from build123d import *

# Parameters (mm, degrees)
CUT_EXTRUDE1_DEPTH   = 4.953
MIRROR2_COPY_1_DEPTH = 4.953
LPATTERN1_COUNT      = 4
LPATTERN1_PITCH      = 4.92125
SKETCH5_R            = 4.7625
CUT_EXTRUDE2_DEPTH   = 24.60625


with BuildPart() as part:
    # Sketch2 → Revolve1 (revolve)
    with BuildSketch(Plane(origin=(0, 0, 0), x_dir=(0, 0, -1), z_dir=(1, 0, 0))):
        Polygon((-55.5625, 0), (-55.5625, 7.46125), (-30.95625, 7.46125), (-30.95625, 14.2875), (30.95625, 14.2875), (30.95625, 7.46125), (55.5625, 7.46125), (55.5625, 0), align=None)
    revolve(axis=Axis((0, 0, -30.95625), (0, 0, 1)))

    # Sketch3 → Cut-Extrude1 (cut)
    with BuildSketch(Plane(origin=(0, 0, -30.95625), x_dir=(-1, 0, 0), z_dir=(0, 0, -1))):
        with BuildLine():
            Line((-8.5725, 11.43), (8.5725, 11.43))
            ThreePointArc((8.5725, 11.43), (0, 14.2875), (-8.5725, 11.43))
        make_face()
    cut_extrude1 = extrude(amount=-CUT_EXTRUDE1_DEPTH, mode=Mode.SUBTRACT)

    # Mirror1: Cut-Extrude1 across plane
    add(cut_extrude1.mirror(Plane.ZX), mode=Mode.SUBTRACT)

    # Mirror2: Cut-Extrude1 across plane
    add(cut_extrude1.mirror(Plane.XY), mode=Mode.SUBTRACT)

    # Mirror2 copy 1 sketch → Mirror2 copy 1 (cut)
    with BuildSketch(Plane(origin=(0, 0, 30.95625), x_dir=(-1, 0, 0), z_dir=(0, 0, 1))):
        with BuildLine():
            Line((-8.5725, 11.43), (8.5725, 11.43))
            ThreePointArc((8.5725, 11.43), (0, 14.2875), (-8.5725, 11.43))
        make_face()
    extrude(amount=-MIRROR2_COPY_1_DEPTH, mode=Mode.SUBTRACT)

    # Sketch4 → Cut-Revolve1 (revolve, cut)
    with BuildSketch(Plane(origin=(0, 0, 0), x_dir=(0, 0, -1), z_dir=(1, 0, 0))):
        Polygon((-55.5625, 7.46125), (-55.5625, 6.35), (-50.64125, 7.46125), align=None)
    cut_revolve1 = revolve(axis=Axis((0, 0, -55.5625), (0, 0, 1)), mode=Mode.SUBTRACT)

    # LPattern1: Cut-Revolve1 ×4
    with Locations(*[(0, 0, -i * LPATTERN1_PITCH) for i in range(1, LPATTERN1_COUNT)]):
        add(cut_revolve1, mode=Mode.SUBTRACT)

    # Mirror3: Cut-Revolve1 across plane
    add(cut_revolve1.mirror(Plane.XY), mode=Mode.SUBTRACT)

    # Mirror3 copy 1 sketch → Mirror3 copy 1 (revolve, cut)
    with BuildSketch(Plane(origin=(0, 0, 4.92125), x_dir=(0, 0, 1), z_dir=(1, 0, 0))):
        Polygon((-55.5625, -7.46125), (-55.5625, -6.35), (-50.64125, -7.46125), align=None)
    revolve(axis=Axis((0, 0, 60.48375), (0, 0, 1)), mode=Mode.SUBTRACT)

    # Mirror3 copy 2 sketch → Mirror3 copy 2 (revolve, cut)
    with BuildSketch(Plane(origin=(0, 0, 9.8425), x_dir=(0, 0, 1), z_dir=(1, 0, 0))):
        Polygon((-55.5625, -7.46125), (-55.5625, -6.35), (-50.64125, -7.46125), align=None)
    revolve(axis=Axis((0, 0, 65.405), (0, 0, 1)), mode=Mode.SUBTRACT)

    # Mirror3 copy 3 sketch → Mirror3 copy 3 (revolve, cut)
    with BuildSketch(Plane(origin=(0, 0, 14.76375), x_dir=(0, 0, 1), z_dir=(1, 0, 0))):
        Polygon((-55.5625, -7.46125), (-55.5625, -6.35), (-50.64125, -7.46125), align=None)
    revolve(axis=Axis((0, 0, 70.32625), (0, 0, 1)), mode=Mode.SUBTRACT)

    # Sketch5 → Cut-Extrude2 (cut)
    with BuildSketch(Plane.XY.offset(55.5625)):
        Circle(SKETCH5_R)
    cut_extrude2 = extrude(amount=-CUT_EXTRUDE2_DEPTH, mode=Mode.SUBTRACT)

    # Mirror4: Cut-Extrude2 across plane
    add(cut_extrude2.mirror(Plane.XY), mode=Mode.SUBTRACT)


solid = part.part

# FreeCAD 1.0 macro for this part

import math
import FreeCAD as App
import Part
import Sketcher

V = App.Vector
Q = App.Units.Quantity

doc = App.newDocument("Part")
body = doc.addObject("PartDesign::Body", "Body")

sketch1 = body.newObject("Sketcher::SketchObject", "Sketch")
sketch1.AttachmentSupport = (doc.getObject("YZ_Plane"), [""])
sketch1.MapMode = "FlatFace"
sketch1.addGeometry([
    Part.LineSegment(V(7.46125, 55.5625, 0), V(0, 55.5625, 0)),
    Part.LineSegment(V(0, 55.5625, 0), V(0, -55.5625, 0)),
    Part.LineSegment(V(0, -55.5625, 0), V(7.46125, -55.5625, 0)),
    Part.LineSegment(V(7.46125, -55.5625, 0), V(7.46125, -30.95625, 0)),
    Part.LineSegment(V(7.46125, -30.95625, 0), V(14.2875, -30.95625, 0)),
    Part.LineSegment(V(14.2875, -30.95625, 0), V(14.2875, 30.95625, 0)),
    Part.LineSegment(V(14.2875, 30.95625, 0), V(7.46125, 30.95625, 0)),
    Part.LineSegment(V(7.46125, 30.95625, 0), V(7.46125, 55.5625, 0)),
], False)
sketch1.addConstraint([
    Sketcher.Constraint("Coincident", 0, 2, 1, 1),
    Sketcher.Constraint("Coincident", 1, 2, 2, 1),
    Sketcher.Constraint("Coincident", 2, 2, 3, 1),
    Sketcher.Constraint("Coincident", 3, 2, 4, 1),
    Sketcher.Constraint("Coincident", 4, 2, 5, 1),
    Sketcher.Constraint("Coincident", 5, 2, 6, 1),
    Sketcher.Constraint("Coincident", 6, 2, 7, 1),
    Sketcher.Constraint("Coincident", 7, 2, 0, 1),
    Sketcher.Constraint("Horizontal", 0),
    Sketcher.Constraint("Vertical", 1),
    Sketcher.Constraint("Horizontal", 2),
    Sketcher.Constraint("Vertical", 3),
    Sketcher.Constraint("Horizontal", 4),
    Sketcher.Constraint("Vertical", 5),
    Sketcher.Constraint("Horizontal", 6),
    Sketcher.Constraint("Vertical", 7),
    Sketcher.Constraint("Symmetric", 0, 2, 1, 2, -1, 1),
    Sketcher.Constraint("Symmetric", 3, 2, 6, 2, -1),
    Sketcher.Constraint("DistanceY", 1, 2, 1, 1, Q("4.375 in")),
    Sketcher.Constraint("DistanceY", 3, 1, 3, 2, Q("0.96875 in")),
    Sketcher.Constraint("DistanceX", -1, 1, 4, 2, Q("0.5625 in")),
    Sketcher.Constraint("DistanceX", 0, 2, 0, 1, Q("7.46125 mm")),
])
revolution = body.newObject("PartDesign::Revolution", "Revolution")
revolution.Profile = sketch1
revolution.ReferenceAxis = (sketch1, ["V_Axis"])
revolution.Angle = 360

sketch2 = body.newObject("Sketcher::SketchObject", "Sketch001")
sketch2.AttachmentSupport = (doc.getObject("XY_Plane"), [""])
sketch2.MapMode = "FlatFace"
sketch2.AttachmentOffset = App.Placement(V(0, 0, -1.21875 * 25.4), App.Rotation())
sketch2.addGeometry([
    Part.LineSegment(V(8.5725, 11.43, 0), V(-8.5725, 11.43, 0)),
    Part.ArcOfCircle(Part.Circle(V(0, 0, 0), V(0, 0, 1), 14.2875), math.radians(53.130102), math.radians(126.869898)),
], False)
sketch2.addConstraint([
    Sketcher.Constraint("Coincident", 0, 1, 1, 1),
    Sketcher.Constraint("Coincident", 1, 2, 0, 2),
    Sketcher.Constraint("Horizontal", 0),
    Sketcher.Constraint("Coincident", 1, 3, -1, 1),
    Sketcher.Constraint("Radius", 1, Q("0.5625 in")),
    Sketcher.Constraint("DistanceX", 0, 2, 0, 1, Q("0.675 in")),
])
pocket1 = body.newObject("PartDesign::Pocket", "Pocket")
pocket1.Profile = sketch2
pocket1.Length = Q("0.195 in")
pocket1.Reversed = True
doc.recompute()

mirrored = body.newObject("PartDesign::Mirrored", "Mirrored")
mirrored.Originals = [pocket1]
mirrored.MirrorPlane = (doc.getObject("XZ_Plane"), [""])
body.Tip = mirrored
doc.recompute()

mirrored2 = body.newObject("PartDesign::Mirrored", "Mirrored001")
mirrored2.Originals = [pocket1]
mirrored2.MirrorPlane = (doc.getObject("XY_Plane"), [""])
body.Tip = mirrored2

sketch3 = body.newObject("Sketcher::SketchObject", "Sketch002")
sketch3.AttachmentSupport = (doc.getObject("XY_Plane"), [""])
sketch3.MapMode = "FlatFace"
sketch3.AttachmentOffset = App.Placement(V(0, 0, 1.21875 * 25.4), App.Rotation())
sketch3.addGeometry([
    Part.LineSegment(V(8.5725, -11.43, 0), V(-8.5725, -11.43, 0)),
    Part.ArcOfCircle(Part.Circle(V(0, 0, 0), V(0, 0, 1), 14.2875), math.radians(-126.869898), math.radians(-53.130102)),
], False)
sketch3.addConstraint([
    Sketcher.Constraint("Coincident", 0, 1, 1, 2),
    Sketcher.Constraint("Coincident", 1, 1, 0, 2),
    Sketcher.Constraint("Horizontal", 0),
    Sketcher.Constraint("Coincident", 1, 3, -1, 1),
    Sketcher.Constraint("Radius", 1, Q("0.5625 in")),
    Sketcher.Constraint("DistanceX", 0, 2, 0, 1, Q("0.675 in")),
])
pocket2 = body.newObject("PartDesign::Pocket", "Pocket001")
pocket2.Profile = sketch3
pocket2.Length = Q("0.195 in")

sketch4 = body.newObject("Sketcher::SketchObject", "Sketch003")
sketch4.AttachmentSupport = (doc.getObject("YZ_Plane"), [""])
sketch4.MapMode = "FlatFace"
sketch4.addGeometry([
    Part.LineSegment(V(7.46125, 55.5625, 0), V(6.35, 55.5625, 0)),
    Part.LineSegment(V(6.35, 55.5625, 0), V(7.46125, 50.64125, 0)),
    Part.LineSegment(V(7.46125, 50.64125, 0), V(7.46125, 55.5625, 0)),
], False)
sketch4.addConstraint([
    Sketcher.Constraint("Coincident", 0, 2, 1, 1),
    Sketcher.Constraint("Coincident", 1, 2, 2, 1),
    Sketcher.Constraint("Coincident", 2, 2, 0, 1),
    Sketcher.Constraint("Horizontal", 0),
    Sketcher.Constraint("Vertical", 2),
    Sketcher.Constraint("DistanceX", -1, 1, 0, 2, Q("0.25 in")),
    Sketcher.Constraint("DistanceY", -1, 1, 0, 2, Q("2.1875 in")),
    Sketcher.Constraint("DistanceX", 0, 2, 0, 1, Q("1.11125 mm")),
    Sketcher.Constraint("DistanceY", 2, 1, 2, 2, Q("4.92125 mm")),
])
groove = body.newObject("PartDesign::Groove", "Groove")
groove.Profile = sketch4
groove.ReferenceAxis = (sketch4, ["V_Axis"])
groove.Angle = 360
doc.recompute()

linearpattern = body.newObject("PartDesign::LinearPattern", "LinearPattern")
linearpattern.Originals = [groove]
linearpattern.Direction = (doc.getObject("Z_Axis"), [""])
linearpattern.Mode = "offset"
linearpattern.Offset = 4.92125
linearpattern.Occurrences = 4
linearpattern.Reversed = True
body.Tip = linearpattern
doc.recompute()

mirrored3 = body.newObject("PartDesign::Mirrored", "Mirrored002")
mirrored3.Originals = [groove]
mirrored3.MirrorPlane = (doc.getObject("XY_Plane"), [""])
body.Tip = mirrored3

sketch5 = body.newObject("Sketcher::SketchObject", "Sketch004")
sketch5.AttachmentSupport = (doc.getObject("YZ_Plane"), [""])
sketch5.MapMode = "FlatFace"
sketch5.addGeometry([
    Part.LineSegment(V(6.35, -50.64125, 0), V(7.46125, -50.64125, 0)),
    Part.LineSegment(V(7.46125, -50.64125, 0), V(7.46125, -45.72, 0)),
    Part.LineSegment(V(7.46125, -45.72, 0), V(6.35, -50.64125, 0)),
], False)
sketch5.addConstraint([
    Sketcher.Constraint("Coincident", 0, 2, 1, 1),
    Sketcher.Constraint("Coincident", 1, 2, 2, 1),
    Sketcher.Constraint("Coincident", 2, 2, 0, 1),
    Sketcher.Constraint("Horizontal", 0),
    Sketcher.Constraint("Vertical", 1),
    Sketcher.Constraint("DistanceY", 1, 2, -1, 1, Q("1.8 in")),
    Sketcher.Constraint("DistanceX", -1, 1, 2, 2, Q("0.25 in")),
    Sketcher.Constraint("DistanceX", 0, 1, 0, 2, Q("1.11125 mm")),
    Sketcher.Constraint("DistanceY", 1, 1, 1, 2, Q("4.92125 mm")),
])
groove2 = body.newObject("PartDesign::Groove", "Groove001")
groove2.Profile = sketch5
groove2.ReferenceAxis = (sketch5, ["V_Axis"])
groove2.Angle = 360

sketch6 = body.newObject("Sketcher::SketchObject", "Sketch005")
sketch6.AttachmentSupport = (doc.getObject("YZ_Plane"), [""])
sketch6.MapMode = "FlatFace"
sketch6.addGeometry([
    Part.LineSegment(V(6.35, -45.72, 0), V(7.46125, -45.72, 0)),
    Part.LineSegment(V(7.46125, -45.72, 0), V(7.46125, -40.79875, 0)),
    Part.LineSegment(V(7.46125, -40.79875, 0), V(6.35, -45.72, 0)),
], False)
sketch6.addConstraint([
    Sketcher.Constraint("Coincident", 0, 2, 1, 1),
    Sketcher.Constraint("Coincident", 1, 2, 2, 1),
    Sketcher.Constraint("Coincident", 2, 2, 0, 1),
    Sketcher.Constraint("Horizontal", 0),
    Sketcher.Constraint("Vertical", 1),
    Sketcher.Constraint("DistanceY", 0, 2, -1, 1, Q("1.8 in")),
    Sketcher.Constraint("DistanceX", -1, 1, 2, 2, Q("0.25 in")),
    Sketcher.Constraint("DistanceX", 0, 1, 0, 2, Q("1.11125 mm")),
    Sketcher.Constraint("DistanceY", 1, 1, 1, 2, Q("4.92125 mm")),
])
groove3 = body.newObject("PartDesign::Groove", "Groove002")
groove3.Profile = sketch6
groove3.ReferenceAxis = (sketch6, ["V_Axis"])
groove3.Angle = 360

sketch7 = body.newObject("Sketcher::SketchObject", "Sketch006")
sketch7.AttachmentSupport = (doc.getObject("YZ_Plane"), [""])
sketch7.MapMode = "FlatFace"
sketch7.addGeometry([
    Part.LineSegment(V(6.35, -40.79875, 0), V(7.46125, -40.79875, 0)),
    Part.LineSegment(V(7.46125, -40.79875, 0), V(7.46125, -35.8775, 0)),
    Part.LineSegment(V(7.46125, -35.8775, 0), V(6.35, -40.79875, 0)),
], False)
sketch7.addConstraint([
    Sketcher.Constraint("Coincident", 0, 2, 1, 1),
    Sketcher.Constraint("Coincident", 1, 2, 2, 1),
    Sketcher.Constraint("Coincident", 2, 2, 0, 1),
    Sketcher.Constraint("Horizontal", 0),
    Sketcher.Constraint("Vertical", 1),
    Sketcher.Constraint("DistanceX", -1, 1, 2, 2, Q("0.25 in")),
    Sketcher.Constraint("DistanceY", 1, 2, -1, 1, Q("1.4125 in")),
    Sketcher.Constraint("DistanceX", 0, 1, 0, 2, Q("1.11125 mm")),
    Sketcher.Constraint("DistanceY", 1, 1, 1, 2, Q("4.92125 mm")),
])
groove4 = body.newObject("PartDesign::Groove", "Groove003")
groove4.Profile = sketch7
groove4.ReferenceAxis = (sketch7, ["V_Axis"])
groove4.Angle = 360

sketch8 = body.newObject("Sketcher::SketchObject", "Sketch007")
sketch8.AttachmentSupport = (doc.getObject("XY_Plane"), [""])
sketch8.MapMode = "FlatFace"
sketch8.AttachmentOffset = App.Placement(V(0, 0, 2.1875 * 25.4), App.Rotation())
sketch8.addGeometry(Part.Circle(V(0, 0, 0), V(0, 0, 1), 4.7625), False)
sketch8.addConstraint([
    Sketcher.Constraint("Coincident", 0, 3, -1, 1),
    Sketcher.Constraint("Diameter", 0, Q("0.375 in")),
])
pocket3 = body.newObject("PartDesign::Pocket", "Pocket002")
pocket3.Profile = sketch8
pocket3.Length = Q("0.96875 in")
doc.recompute()

mirrored4 = body.newObject("PartDesign::Mirrored", "Mirrored003")
mirrored4.Originals = [pocket3]
mirrored4.MirrorPlane = (doc.getObject("XY_Plane"), [""])
body.Tip = mirrored4

doc.recompute()
